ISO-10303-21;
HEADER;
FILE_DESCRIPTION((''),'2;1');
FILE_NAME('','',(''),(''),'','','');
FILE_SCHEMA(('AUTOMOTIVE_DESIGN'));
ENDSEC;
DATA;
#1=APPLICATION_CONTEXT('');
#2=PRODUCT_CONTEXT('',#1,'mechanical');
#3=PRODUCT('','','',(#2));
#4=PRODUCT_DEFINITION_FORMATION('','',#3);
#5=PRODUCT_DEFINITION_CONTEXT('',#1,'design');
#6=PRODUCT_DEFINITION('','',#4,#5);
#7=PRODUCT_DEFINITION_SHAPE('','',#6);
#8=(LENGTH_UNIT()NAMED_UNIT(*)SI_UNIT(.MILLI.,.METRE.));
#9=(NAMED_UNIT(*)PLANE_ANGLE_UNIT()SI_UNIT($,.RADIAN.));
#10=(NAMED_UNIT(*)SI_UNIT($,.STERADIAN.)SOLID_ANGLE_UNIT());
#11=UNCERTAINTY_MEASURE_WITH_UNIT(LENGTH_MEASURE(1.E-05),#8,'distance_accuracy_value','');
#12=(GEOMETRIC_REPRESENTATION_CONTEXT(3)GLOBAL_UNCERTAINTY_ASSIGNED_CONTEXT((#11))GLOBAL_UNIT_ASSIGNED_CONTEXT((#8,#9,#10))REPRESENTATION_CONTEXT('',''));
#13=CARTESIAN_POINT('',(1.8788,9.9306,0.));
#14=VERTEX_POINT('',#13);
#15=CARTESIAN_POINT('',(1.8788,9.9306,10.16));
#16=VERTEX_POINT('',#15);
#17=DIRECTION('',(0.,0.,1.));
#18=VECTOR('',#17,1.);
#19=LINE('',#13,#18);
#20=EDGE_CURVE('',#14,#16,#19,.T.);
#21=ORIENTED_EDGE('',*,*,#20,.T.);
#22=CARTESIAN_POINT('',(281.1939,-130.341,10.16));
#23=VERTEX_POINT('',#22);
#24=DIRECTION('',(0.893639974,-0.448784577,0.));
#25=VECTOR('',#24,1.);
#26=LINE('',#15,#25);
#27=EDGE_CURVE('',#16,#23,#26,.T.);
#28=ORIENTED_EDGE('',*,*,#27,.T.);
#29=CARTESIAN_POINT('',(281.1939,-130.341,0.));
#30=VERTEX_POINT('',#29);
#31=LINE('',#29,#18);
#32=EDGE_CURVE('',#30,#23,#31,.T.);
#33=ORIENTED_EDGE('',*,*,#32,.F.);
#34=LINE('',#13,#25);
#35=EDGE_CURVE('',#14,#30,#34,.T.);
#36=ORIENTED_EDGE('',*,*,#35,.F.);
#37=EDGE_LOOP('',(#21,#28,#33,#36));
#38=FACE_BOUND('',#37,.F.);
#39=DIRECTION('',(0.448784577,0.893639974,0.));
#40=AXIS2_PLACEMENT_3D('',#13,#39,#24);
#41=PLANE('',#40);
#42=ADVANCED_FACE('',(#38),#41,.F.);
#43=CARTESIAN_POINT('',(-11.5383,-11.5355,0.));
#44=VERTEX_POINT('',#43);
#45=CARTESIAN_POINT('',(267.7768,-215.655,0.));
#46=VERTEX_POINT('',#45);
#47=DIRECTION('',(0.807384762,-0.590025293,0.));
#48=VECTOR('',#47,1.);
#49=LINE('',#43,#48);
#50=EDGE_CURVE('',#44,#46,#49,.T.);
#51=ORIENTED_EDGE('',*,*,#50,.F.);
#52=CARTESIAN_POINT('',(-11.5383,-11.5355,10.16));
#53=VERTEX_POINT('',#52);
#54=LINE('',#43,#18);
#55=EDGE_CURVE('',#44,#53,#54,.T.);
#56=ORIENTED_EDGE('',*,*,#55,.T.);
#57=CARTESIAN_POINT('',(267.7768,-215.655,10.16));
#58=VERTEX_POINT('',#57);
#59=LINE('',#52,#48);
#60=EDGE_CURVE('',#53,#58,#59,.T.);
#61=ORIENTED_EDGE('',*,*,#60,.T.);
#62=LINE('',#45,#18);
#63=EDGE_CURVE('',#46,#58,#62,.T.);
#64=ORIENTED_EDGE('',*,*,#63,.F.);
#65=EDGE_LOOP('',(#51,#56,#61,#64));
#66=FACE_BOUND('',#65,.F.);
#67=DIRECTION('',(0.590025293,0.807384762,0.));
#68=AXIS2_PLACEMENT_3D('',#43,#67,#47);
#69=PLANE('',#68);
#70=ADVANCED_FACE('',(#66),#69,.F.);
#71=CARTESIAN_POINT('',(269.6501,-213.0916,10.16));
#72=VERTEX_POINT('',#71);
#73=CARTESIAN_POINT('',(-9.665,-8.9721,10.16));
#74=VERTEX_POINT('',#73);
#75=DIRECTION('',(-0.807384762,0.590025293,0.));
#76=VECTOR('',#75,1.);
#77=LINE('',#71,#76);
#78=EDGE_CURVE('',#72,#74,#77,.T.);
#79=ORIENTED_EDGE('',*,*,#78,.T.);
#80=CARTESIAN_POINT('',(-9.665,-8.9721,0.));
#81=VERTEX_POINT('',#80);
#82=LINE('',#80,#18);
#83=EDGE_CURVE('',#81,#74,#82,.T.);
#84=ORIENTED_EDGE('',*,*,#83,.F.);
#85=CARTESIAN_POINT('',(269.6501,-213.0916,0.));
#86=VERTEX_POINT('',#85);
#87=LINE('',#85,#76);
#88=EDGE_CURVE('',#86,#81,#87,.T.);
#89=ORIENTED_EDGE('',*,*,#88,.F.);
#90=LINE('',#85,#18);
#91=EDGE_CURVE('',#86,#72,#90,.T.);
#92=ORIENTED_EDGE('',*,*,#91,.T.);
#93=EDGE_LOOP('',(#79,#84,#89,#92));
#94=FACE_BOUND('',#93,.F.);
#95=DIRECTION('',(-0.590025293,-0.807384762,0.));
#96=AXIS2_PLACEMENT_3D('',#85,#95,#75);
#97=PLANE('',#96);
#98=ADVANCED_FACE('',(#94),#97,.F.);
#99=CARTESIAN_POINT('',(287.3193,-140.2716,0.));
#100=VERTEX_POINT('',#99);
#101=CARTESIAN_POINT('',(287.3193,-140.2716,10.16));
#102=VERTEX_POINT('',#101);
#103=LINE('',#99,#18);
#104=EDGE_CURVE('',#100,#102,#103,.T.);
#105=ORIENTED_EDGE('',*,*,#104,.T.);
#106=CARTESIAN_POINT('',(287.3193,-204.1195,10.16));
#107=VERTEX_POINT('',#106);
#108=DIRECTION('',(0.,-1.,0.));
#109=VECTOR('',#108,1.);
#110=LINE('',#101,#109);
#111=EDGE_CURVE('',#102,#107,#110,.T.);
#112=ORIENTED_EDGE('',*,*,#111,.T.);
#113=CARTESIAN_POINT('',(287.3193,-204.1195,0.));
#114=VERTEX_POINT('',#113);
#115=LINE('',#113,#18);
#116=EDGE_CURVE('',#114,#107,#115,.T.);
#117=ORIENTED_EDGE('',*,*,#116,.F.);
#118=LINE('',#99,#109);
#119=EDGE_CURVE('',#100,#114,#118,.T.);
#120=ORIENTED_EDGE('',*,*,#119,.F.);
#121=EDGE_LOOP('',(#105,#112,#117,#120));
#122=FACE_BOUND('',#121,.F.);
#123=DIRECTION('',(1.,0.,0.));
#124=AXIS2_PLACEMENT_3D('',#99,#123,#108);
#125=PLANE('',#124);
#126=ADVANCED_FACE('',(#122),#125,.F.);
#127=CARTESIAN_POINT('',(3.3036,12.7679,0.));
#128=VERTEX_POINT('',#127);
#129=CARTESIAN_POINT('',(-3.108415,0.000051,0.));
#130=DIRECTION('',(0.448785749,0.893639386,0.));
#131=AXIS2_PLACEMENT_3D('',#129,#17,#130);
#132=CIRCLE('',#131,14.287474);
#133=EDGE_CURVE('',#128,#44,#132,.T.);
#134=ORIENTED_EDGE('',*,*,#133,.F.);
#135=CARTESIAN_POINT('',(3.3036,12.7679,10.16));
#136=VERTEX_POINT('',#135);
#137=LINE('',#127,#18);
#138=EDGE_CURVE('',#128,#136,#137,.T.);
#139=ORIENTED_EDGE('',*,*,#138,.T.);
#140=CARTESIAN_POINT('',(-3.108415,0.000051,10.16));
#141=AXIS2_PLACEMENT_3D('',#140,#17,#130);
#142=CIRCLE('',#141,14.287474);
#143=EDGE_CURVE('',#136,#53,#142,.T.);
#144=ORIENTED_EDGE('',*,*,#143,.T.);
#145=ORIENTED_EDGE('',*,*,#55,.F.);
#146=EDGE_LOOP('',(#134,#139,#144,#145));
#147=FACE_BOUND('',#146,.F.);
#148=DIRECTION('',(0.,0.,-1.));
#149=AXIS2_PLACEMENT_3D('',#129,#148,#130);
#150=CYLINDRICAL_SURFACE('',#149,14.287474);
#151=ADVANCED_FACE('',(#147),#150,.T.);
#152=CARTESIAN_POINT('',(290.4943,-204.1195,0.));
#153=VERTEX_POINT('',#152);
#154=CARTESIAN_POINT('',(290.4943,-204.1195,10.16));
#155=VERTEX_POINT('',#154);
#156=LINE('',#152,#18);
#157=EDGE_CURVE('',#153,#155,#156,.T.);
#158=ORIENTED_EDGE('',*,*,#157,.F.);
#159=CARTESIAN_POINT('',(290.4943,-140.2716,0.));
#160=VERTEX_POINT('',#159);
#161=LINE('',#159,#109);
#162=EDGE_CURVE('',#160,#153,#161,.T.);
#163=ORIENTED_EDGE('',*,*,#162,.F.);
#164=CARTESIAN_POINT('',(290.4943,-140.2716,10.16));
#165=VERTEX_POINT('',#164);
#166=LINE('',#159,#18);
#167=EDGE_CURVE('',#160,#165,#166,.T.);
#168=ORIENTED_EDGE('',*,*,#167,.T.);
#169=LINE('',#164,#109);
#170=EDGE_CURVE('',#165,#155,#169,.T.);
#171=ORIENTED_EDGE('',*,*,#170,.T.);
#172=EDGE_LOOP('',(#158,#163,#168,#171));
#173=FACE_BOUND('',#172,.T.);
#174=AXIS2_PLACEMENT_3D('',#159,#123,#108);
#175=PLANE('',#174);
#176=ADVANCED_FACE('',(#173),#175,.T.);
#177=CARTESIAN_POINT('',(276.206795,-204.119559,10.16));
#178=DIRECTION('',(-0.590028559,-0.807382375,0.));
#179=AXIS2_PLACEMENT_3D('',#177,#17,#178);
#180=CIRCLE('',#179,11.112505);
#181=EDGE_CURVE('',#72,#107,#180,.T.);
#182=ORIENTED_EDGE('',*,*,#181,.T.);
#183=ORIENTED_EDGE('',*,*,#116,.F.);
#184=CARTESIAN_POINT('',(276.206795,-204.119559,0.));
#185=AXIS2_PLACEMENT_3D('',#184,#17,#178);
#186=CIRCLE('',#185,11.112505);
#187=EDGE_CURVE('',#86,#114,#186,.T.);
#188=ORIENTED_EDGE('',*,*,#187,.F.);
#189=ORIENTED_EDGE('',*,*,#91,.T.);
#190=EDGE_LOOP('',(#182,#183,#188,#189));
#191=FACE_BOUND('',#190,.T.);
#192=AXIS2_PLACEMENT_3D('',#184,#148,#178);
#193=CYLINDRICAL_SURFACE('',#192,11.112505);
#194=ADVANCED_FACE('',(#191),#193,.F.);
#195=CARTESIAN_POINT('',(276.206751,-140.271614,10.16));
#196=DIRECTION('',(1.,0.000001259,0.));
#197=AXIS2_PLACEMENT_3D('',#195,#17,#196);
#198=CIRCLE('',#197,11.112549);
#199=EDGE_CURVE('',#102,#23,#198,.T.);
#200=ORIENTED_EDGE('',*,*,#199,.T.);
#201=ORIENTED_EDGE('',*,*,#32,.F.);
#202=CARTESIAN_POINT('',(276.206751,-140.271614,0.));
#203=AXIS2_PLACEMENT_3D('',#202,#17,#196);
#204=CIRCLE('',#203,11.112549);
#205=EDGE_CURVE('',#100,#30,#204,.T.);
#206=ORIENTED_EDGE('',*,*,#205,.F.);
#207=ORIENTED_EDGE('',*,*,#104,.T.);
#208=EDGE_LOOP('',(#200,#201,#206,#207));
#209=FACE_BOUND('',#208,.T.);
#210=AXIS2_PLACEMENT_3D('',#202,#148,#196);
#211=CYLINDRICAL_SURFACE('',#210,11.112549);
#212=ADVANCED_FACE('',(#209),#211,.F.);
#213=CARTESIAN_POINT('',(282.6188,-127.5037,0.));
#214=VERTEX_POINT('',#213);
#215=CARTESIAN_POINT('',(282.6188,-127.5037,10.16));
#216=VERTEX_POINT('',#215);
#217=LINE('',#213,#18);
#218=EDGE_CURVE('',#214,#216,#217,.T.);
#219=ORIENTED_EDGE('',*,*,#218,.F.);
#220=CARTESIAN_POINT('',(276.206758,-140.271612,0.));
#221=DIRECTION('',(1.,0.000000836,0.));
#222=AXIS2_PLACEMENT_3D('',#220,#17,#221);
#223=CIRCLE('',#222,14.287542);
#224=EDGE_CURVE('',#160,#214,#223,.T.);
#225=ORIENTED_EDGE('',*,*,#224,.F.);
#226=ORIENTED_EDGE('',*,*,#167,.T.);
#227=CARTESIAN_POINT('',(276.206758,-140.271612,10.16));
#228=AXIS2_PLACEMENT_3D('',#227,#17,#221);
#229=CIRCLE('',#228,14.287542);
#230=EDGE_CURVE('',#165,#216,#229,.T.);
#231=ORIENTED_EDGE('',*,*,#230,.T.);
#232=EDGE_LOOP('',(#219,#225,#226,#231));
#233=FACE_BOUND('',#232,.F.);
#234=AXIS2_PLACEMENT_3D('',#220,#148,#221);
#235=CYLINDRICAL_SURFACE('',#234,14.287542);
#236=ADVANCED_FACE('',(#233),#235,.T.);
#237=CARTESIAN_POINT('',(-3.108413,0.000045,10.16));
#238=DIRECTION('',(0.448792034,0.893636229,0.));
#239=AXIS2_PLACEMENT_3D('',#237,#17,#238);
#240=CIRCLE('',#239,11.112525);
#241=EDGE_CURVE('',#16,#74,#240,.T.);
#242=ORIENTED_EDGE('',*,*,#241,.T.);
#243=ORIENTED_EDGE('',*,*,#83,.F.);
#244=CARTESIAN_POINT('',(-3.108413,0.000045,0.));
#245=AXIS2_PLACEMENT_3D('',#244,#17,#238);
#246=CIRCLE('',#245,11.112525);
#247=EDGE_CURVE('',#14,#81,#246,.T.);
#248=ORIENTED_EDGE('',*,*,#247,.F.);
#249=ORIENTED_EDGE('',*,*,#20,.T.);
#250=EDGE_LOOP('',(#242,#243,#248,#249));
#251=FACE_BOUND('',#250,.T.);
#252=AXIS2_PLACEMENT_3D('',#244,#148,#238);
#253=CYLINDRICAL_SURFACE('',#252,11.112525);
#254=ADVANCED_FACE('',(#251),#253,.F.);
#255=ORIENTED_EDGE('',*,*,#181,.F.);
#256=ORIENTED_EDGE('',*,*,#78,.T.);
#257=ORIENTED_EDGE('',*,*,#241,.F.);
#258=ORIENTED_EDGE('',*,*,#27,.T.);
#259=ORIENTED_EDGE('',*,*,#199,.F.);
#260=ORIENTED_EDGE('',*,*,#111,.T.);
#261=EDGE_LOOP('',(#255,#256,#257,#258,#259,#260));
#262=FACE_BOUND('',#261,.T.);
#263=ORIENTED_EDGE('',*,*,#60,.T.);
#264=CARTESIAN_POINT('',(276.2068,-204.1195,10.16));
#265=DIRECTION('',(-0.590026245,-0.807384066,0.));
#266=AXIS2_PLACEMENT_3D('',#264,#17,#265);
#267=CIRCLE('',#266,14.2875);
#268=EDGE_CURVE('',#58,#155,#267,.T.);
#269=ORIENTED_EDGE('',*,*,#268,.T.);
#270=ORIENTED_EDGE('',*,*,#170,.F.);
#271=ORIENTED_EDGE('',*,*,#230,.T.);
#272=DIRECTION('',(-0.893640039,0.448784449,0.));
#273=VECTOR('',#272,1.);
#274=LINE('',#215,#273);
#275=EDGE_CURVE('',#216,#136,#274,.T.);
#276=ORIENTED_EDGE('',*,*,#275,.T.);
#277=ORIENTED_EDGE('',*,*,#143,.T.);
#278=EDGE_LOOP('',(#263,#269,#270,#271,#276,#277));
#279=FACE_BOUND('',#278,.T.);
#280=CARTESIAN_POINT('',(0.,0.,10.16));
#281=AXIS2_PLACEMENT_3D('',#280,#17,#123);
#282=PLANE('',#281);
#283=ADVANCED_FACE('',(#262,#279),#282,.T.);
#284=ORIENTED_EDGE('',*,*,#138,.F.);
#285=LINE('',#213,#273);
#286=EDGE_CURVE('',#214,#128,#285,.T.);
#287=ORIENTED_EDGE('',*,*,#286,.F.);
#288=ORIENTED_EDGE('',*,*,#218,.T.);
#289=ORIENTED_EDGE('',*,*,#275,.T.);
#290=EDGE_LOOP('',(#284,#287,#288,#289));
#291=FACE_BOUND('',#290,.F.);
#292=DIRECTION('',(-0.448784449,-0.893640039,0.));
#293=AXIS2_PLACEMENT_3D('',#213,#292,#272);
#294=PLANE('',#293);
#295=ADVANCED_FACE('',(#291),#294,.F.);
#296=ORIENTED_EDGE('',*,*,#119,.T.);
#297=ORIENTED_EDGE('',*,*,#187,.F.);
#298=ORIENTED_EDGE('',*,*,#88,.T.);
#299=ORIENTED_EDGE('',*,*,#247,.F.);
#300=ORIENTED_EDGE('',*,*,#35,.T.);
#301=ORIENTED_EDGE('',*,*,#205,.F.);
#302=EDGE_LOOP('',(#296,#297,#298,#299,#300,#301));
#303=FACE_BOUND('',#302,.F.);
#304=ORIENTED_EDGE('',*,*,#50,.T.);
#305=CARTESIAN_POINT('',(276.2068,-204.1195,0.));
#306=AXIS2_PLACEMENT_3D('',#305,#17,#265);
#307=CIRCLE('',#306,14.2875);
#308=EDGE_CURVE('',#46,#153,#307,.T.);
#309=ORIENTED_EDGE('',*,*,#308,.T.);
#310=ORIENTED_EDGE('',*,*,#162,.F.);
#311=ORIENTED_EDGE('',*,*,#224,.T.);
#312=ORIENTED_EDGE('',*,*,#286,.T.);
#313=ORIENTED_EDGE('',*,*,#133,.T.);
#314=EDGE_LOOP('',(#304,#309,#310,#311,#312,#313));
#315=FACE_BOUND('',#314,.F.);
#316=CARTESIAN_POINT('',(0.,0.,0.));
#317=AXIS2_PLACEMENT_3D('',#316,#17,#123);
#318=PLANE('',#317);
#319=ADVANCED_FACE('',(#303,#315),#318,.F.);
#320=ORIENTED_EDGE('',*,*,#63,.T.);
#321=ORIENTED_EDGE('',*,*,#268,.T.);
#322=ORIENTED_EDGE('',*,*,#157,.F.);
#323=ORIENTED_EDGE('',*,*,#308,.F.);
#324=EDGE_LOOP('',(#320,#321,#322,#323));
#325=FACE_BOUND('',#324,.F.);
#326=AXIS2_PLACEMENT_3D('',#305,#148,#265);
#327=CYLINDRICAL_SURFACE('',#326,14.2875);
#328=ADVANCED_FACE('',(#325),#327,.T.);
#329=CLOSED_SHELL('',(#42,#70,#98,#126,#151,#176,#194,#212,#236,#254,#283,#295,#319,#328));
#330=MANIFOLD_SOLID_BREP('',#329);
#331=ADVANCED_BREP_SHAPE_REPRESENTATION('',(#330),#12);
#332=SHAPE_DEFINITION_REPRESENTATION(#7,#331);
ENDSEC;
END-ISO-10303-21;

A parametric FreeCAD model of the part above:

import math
import FreeCAD as App
import Part
import Sketcher

V = App.Vector
Q = App.Units.Quantity

doc = App.newDocument("Part")
body = doc.addObject("PartDesign::Body", "Body")

# Sketch on XY plane
sketch1 = body.newObject("Sketcher::SketchObject", "Sketch")
sketch1.AttachmentSupport = (doc.getObject("XY_Plane"), [""])
sketch1.MapMode = "FlatFace"
sketch1.addGeometry([
    Part.LineSegment(V(283, -128, 0), V(3, 13, 0)),  # 0
    Part.ArcOfCircle(Part.Circle(V(-3, 0, 0), V(0, 0, 1), 14), math.radians(63), math.radians(234)),  # 1
    Part.LineSegment(V(-12, -12, 0), V(268, -216, 0)),  # 2
    Part.ArcOfCircle(Part.Circle(V(276, -204, 0), V(0, 0, 1), 14), math.radians(-126), math.radians(0)),  # 3
    Part.LineSegment(V(290, -204, 0), V(290, -140, 0)),  # 4
    Part.ArcOfCircle(Part.Circle(V(276, -140, 0), V(0, 0, 1), 14), math.radians(0), math.radians(63)),  # 5
    Part.ArcOfCircle(Part.Circle(V(-3, 0, 0), V(0, 0, 1), 11), math.radians(63), math.radians(234)),  # 6
    Part.LineSegment(V(2, 10, 0), V(281, -130, 0)),  # 7
    Part.ArcOfCircle(Part.Circle(V(276, -140, 0), V(0, 0, 1), 11), math.radians(0), math.radians(63)),  # 8
    Part.LineSegment(V(287, -140, 0), V(287, -204, 0)),  # 9
    Part.ArcOfCircle(Part.Circle(V(276, -204, 0), V(0, 0, 1), 11), math.radians(-126), math.radians(0)),  # 10
    Part.LineSegment(V(270, -213, 0), V(-10, -9, 0)),  # 11
], False)
sketch1.addConstraint([
    Sketcher.Constraint("Tangent", 0, 2, 1, 1),
    Sketcher.Constraint("Tangent", 1, 2, 2, 1),
    Sketcher.Constraint("Tangent", 2, 2, 3, 1),
    Sketcher.Constraint("Tangent", 3, 2, 4, 1),
    Sketcher.Constraint("Tangent", 4, 2, 5, 1),
    Sketcher.Constraint("Tangent", 5, 2, 0, 1),
    Sketcher.Constraint("Tangent", 6, 1, 7, 1),
    Sketcher.Constraint("Tangent", 7, 2, 8, 2),
    Sketcher.Constraint("Tangent", 8, 1, 9, 1),
    Sketcher.Constraint("Tangent", 9, 2, 10, 2),
    Sketcher.Constraint("Tangent", 10, 1, 11, 1),
    Sketcher.Constraint("Tangent", 11, 2, 6, 2),
    Sketcher.Constraint("Vertical", 4),
    Sketcher.Constraint("Vertical", 9),
    Sketcher.Constraint("Coincident", 6, 3, 1, 3),
    Sketcher.Constraint("Coincident", 8, 3, 5, 3),
    Sketcher.Constraint("Coincident", 10, 3, 3, 3),
    Sketcher.Constraint("Equal", 1, 3),
    Sketcher.Constraint("Equal", 3, 5),
    Sketcher.Constraint("Equal", 6, 8),
    Sketcher.Constraint("PointOnObject", 1, 3, -1),
    Sketcher.Constraint("Radius", 6, Q("0.4375 in")),
    Sketcher.Constraint("Radius", 1, Q("0.5625 in")),
    Sketcher.Constraint("Angle", 2, Q("-36.1588 deg")),
    Sketcher.Constraint("DistanceY", 4, 1, 4, 2, Q("2.5137 in")),
    Sketcher.Constraint("Distance", 2, Q("13.6201 in")),
    Sketcher.Constraint("DistanceX", -1, 1, 2, 2, Q("10.5424 in")),
])
pad1 = body.newObject("PartDesign::Pad", "Pad")
pad1.Profile = sketch1
pad1.Length = Q("0.4 in")

doc.recompute()
